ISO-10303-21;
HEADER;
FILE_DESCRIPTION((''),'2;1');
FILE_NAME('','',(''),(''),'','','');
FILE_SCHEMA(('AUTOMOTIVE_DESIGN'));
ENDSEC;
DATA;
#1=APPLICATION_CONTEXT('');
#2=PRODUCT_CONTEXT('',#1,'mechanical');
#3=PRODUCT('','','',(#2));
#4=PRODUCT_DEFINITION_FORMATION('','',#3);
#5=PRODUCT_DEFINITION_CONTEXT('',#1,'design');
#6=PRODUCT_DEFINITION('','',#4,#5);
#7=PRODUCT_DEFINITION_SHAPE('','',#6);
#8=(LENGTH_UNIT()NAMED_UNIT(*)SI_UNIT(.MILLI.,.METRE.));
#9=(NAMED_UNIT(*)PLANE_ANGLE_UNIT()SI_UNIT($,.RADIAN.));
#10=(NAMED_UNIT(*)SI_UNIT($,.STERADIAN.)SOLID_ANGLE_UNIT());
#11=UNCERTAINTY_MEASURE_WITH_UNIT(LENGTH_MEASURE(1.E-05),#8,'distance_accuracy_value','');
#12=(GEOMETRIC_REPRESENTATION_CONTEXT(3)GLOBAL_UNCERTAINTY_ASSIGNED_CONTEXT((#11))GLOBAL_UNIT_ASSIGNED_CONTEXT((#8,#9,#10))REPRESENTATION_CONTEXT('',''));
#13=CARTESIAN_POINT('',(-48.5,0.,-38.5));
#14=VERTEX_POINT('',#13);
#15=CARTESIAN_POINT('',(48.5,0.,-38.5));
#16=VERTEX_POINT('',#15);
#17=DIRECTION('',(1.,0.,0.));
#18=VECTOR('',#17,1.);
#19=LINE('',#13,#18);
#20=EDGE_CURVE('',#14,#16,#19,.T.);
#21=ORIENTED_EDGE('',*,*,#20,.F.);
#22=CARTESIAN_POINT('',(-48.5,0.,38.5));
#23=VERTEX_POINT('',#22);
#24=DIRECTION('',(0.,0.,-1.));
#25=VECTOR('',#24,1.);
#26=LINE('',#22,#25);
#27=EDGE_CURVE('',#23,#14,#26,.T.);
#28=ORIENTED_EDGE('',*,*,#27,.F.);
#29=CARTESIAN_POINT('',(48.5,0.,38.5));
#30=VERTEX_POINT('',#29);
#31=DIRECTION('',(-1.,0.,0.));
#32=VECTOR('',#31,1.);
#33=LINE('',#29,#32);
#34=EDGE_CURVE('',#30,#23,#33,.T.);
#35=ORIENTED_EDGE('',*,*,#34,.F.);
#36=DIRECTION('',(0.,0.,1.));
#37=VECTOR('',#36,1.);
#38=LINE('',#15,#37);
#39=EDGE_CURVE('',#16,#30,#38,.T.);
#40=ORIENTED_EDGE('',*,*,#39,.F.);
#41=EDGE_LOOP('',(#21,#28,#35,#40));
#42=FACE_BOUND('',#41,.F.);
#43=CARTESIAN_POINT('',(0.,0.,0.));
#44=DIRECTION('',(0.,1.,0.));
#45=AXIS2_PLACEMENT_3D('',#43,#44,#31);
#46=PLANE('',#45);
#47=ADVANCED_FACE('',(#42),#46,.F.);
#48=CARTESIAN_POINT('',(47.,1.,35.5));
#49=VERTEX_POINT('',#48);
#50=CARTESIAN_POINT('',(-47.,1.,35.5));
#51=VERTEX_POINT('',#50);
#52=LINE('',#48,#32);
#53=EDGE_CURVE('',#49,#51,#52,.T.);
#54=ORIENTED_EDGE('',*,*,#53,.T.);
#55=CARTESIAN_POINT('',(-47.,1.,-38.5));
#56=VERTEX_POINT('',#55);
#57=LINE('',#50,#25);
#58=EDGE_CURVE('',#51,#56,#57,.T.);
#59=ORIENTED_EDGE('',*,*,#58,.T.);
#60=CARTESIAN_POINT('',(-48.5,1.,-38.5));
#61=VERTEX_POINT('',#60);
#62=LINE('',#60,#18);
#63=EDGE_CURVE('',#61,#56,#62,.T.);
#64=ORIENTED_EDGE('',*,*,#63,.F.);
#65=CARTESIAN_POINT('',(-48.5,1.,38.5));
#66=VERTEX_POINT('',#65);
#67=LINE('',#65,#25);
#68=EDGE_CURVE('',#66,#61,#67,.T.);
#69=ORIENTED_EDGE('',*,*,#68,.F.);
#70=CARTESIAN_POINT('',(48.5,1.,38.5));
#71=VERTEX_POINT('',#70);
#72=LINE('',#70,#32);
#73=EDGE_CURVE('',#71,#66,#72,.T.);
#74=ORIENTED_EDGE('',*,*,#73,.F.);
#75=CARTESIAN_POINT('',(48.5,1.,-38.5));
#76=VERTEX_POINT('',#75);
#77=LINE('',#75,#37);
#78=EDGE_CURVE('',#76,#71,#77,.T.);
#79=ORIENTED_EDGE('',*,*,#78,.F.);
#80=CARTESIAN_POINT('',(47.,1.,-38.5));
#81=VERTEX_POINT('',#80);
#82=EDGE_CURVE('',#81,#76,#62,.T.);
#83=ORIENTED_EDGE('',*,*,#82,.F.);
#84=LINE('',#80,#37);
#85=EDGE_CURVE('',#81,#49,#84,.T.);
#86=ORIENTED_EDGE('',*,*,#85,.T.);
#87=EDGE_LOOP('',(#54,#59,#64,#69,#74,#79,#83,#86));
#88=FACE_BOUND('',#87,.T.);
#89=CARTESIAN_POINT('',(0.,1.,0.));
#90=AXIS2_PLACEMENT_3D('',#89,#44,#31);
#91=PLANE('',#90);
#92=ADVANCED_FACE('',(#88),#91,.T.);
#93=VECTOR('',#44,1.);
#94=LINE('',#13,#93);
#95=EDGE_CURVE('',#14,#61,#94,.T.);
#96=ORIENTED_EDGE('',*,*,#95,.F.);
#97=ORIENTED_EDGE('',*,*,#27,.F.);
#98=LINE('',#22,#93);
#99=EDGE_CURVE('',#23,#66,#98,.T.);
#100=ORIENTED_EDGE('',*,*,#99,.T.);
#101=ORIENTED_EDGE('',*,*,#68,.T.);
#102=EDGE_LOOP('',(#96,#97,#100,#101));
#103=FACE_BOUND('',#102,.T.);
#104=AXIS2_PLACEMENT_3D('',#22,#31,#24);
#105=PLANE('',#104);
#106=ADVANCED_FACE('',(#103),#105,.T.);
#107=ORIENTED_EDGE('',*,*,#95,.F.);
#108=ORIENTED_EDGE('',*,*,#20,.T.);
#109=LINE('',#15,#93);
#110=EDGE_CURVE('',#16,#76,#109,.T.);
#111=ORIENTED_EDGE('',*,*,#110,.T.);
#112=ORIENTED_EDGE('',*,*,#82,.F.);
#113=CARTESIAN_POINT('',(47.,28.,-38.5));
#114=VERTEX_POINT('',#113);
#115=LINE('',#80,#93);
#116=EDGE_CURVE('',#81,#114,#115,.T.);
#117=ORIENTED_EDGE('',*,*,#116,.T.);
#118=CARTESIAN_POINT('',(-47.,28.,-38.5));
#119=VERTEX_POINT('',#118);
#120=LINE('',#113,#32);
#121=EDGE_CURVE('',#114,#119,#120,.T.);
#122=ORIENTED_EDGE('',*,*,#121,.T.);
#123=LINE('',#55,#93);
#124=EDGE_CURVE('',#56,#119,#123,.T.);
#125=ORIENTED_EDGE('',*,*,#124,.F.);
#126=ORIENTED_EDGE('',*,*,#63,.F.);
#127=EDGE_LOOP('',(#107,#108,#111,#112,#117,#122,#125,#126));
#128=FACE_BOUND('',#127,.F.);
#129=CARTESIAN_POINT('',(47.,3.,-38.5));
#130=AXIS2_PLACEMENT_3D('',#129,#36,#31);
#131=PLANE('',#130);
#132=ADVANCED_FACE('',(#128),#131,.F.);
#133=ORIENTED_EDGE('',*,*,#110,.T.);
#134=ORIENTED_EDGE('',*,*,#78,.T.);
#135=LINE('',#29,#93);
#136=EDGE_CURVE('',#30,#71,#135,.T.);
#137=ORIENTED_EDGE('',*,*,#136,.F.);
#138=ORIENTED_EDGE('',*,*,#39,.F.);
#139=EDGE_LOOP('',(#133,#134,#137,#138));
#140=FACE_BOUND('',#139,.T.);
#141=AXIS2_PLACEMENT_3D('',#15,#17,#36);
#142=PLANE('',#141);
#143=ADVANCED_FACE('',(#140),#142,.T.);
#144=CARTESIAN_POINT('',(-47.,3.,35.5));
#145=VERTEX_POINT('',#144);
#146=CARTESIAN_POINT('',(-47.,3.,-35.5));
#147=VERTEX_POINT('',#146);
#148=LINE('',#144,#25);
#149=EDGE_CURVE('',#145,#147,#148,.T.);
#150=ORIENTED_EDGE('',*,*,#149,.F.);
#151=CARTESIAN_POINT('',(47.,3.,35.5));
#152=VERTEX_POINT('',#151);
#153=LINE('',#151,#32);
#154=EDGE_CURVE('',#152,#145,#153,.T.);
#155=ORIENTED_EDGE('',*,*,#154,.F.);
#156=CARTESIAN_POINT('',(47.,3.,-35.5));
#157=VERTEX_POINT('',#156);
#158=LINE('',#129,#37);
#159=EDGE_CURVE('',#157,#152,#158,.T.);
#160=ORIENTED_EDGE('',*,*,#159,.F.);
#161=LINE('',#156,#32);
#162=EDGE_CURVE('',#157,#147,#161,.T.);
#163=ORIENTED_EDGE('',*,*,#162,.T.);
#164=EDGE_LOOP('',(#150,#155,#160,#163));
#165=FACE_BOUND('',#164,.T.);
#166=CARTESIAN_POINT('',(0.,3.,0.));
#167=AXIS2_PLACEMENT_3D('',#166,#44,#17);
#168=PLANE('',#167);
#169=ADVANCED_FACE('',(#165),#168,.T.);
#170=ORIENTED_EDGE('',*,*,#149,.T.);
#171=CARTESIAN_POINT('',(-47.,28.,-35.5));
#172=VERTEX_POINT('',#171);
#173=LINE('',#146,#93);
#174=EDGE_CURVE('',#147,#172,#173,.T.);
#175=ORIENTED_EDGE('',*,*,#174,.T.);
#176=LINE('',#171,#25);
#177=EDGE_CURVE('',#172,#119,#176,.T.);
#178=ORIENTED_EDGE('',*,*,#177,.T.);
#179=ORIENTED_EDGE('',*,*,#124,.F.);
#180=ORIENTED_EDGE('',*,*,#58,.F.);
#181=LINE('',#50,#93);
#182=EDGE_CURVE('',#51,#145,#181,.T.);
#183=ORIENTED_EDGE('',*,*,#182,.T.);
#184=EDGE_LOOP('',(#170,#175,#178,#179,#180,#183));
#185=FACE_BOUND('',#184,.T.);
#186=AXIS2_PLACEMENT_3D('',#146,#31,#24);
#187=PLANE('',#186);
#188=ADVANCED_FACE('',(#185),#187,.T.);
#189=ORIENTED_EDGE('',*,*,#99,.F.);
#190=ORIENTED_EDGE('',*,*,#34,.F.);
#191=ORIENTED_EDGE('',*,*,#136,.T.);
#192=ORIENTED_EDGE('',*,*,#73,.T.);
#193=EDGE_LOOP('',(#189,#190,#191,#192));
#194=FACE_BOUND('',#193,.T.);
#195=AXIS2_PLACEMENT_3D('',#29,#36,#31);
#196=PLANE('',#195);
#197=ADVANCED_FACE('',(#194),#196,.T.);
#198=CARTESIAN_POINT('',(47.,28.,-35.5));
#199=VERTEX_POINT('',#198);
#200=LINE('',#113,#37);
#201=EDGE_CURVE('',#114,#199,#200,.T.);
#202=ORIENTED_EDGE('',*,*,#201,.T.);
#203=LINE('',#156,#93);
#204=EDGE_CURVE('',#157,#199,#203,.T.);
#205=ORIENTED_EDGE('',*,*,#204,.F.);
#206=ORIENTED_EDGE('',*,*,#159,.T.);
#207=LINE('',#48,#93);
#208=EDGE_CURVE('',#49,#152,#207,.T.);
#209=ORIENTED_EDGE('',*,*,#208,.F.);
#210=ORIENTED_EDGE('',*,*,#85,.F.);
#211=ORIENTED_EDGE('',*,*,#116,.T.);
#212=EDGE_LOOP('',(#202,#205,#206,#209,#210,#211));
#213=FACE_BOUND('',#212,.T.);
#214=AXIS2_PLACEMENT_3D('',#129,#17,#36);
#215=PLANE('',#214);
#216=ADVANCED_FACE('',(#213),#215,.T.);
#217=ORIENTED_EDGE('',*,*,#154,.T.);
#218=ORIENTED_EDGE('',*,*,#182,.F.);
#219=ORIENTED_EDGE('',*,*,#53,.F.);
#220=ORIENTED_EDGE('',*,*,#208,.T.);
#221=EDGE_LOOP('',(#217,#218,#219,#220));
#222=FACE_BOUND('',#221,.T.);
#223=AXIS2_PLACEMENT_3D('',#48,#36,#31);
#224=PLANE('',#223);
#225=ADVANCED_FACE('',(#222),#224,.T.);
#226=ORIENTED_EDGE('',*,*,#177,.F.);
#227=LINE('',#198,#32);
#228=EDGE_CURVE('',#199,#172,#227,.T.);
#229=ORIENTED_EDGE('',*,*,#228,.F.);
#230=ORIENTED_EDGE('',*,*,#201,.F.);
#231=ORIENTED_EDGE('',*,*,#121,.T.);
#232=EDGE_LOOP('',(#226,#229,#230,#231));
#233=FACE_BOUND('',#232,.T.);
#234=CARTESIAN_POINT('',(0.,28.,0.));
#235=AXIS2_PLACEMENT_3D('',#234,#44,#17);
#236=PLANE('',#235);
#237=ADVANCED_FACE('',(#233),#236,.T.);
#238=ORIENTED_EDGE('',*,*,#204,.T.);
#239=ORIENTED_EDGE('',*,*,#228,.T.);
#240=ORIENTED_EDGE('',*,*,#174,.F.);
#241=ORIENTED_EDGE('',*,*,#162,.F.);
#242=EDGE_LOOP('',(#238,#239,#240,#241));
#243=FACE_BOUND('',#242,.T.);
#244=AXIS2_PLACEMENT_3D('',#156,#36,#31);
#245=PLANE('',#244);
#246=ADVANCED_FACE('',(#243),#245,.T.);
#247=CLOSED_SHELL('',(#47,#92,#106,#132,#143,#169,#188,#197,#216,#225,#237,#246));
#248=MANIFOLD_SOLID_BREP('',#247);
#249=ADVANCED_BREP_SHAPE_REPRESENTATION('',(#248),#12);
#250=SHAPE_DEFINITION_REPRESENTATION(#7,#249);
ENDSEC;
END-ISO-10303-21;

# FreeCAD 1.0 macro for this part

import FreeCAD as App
import Part
import Sketcher
from FreeCAD import Vector


def add_polygon(sketch, points):
    """Adds a closed chain of lines whose ends are joined by coincident constraints."""
    first, n = sketch.GeometryCount, len(points)
    for a, b in zip(points, points[1:] + points[:1]):
        sketch.addGeometry(Part.LineSegment(App.Vector(*a, 0), App.Vector(*b, 0)), False)
    for i in range(n):
        sketch.addConstraint(Sketcher.Constraint("Coincident", first + i, 2, first + (i + 1) % n, 1))

doc = App.newDocument("Part")
params = doc.addObject("Spreadsheet::Sheet", "Params")
for row, (alias, value) in enumerate([
    ("sketch1_width", "97 mm"),
    ("sketch1_height", "77 mm"),
    ("pad1_length", "1 mm"),
    ("sketch2_width", "94 mm"),
    ("sketch2_height", "74 mm"),
    ("pad2_length", "2 mm"),
    ("sketch3_height", "3 mm"),
    ("sketch3_width", "94 mm"),
    ("pad3_length", "25 mm"),
], start=1):
    params.set(f"A{row}", alias)
    params.set(f"B{row}", "=" + value)
    params.setAlias(f"B{row}", alias)

body = doc.addObject("PartDesign::Body", "Body")

sketch1 = body.newObject("Sketcher::SketchObject", "Sketch")
sketch1.AttachmentSupport = (doc.getObject("XZ_Plane"), [""])
sketch1.MapMode = "FlatFace"
add_polygon(sketch1, [(-48, 38), (48, 38), (48, -38), (-48, -38)])
sketch1.addConstraint([
    Sketcher.Constraint("Horizontal", 0),
    Sketcher.Constraint("Vertical", 1),
    Sketcher.Constraint("Horizontal", 2),
    Sketcher.Constraint("Vertical", 3),
    Sketcher.Constraint("Symmetric", 0, 2, 2, 2, -1, 1),
    Sketcher.Constraint("DistanceX", 0, 1, 0, 2, 97.0),
    Sketcher.Constraint("DistanceY", 1, 2, 1, 1, 77.0),
])
sketch1.setExpression("Constraints[9]", "Params.sketch1_width")
sketch1.setExpression("Constraints[10]", "Params.sketch1_height")
pad1 = body.newObject("PartDesign::Pad", "Pad")
pad1.Profile = sketch1
pad1.setExpression("Length", "Params.pad1_length")
pad1.Reversed = True

sketch2 = body.newObject("Sketcher::SketchObject", "Sketch001")
sketch2.AttachmentSupport = (doc.getObject("XZ_Plane"), [""])
sketch2.MapMode = "FlatFace"
sketch2.AttachmentOffset = App.Placement(Vector(0, 0, -1), App.Rotation())
add_polygon(sketch2, [(47, 36), (47, -38), (-47, -38), (-47, 36)])
sketch2.addConstraint([
    Sketcher.Constraint("Vertical", 0),
    Sketcher.Constraint("Horizontal", 1),
    Sketcher.Constraint("Vertical", 2),
    Sketcher.Constraint("Horizontal", 3),
    Sketcher.Constraint("DistanceX", 1, 2, 1, 1, 94.0),
    Sketcher.Constraint("DistanceY", 0, 2, 0, 1, 74.0),
    Sketcher.Constraint("DistanceX", -1, 1, 0, 2, 47.0),
    Sketcher.Constraint("DistanceY", 0, 2, -1, 1, 38.5),
])
sketch2.setExpression("Constraints[8]", "Params.sketch2_width")
sketch2.setExpression("Constraints[9]", "Params.sketch2_height")
pad2 = body.newObject("PartDesign::Pad", "Pad001")
pad2.Profile = sketch2
pad2.setExpression("Length", "Params.pad2_length")
pad2.Reversed = True

sketch3 = body.newObject("Sketcher::SketchObject", "Sketch002")
sketch3.AttachmentSupport = (doc.getObject("XZ_Plane"), [""])
sketch3.MapMode = "FlatFace"
sketch3.AttachmentOffset = App.Placement(Vector(0, 0, -3), App.Rotation())
add_polygon(sketch3, [(47, -35.5), (47, -38.5), (-47, -38.5), (-47, -35.5)])
sketch3.addConstraint([
    Sketcher.Constraint("Vertical", 0),
    Sketcher.Constraint("Horizontal", 1),
    Sketcher.Constraint("Vertical", 2),
    Sketcher.Constraint("Horizontal", 3),
    Sketcher.Constraint("DistanceY", 0, 2, 0, 1, 3.0),
    Sketcher.Constraint("DistanceX", 1, 2, 1, 1, 94.0),
    Sketcher.Constraint("DistanceX", -1, 1, 0, 2, 47.0),
    Sketcher.Constraint("DistanceY", 0, 2, -1, 1, 38.5),
])
sketch3.setExpression("Constraints[8]", "Params.sketch3_height")
sketch3.setExpression("Constraints[9]", "Params.sketch3_width")
pad3 = body.newObject("PartDesign::Pad", "Pad002")
pad3.Profile = sketch3
pad3.setExpression("Length", "Params.pad3_length")
pad3.Reversed = True

doc.recompute()
